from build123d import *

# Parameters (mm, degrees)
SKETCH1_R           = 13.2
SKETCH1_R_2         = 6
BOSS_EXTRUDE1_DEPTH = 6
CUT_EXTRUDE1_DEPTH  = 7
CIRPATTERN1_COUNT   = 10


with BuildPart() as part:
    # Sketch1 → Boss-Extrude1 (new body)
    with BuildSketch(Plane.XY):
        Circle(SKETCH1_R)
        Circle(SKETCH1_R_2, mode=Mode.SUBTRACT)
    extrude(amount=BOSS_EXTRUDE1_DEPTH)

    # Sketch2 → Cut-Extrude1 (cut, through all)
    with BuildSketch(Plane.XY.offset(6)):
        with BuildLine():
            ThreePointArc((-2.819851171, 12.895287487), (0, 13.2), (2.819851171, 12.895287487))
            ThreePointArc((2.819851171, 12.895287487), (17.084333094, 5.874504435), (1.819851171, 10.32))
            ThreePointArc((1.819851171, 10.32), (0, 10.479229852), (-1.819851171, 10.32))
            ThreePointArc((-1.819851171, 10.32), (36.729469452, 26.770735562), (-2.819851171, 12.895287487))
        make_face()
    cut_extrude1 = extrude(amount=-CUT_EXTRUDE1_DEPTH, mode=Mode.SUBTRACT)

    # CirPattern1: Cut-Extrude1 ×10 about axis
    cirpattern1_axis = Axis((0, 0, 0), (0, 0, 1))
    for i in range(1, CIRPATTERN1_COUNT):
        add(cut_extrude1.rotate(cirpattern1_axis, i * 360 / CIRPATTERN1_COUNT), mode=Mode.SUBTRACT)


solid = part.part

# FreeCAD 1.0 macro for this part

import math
import FreeCAD as App
import Part
import Sketcher

V = App.Vector

doc = App.newDocument("Part")
params = doc.addObject("Spreadsheet::Sheet", "Params")
for row, (alias, value) in enumerate([
    ("sketch1_diameter", "12 mm"),
    ("sketch1_diameter2", "26.4 mm"),
    ("pad1_length", "6 mm"),
    ("sketch2_radius", "13.2 mm"),
], start=1):
    params.set(f"A{row}", alias)
    params.set(f"B{row}", "=" + value)
    params.setAlias(f"B{row}", alias)

body = doc.addObject("PartDesign::Body", "Body")
body.AllowCompound = True

sketch1 = body.newObject("Sketcher::SketchObject", "Sketch")
sketch1.AttachmentSupport = (doc.getObject("XY_Plane"), [""])
sketch1.MapMode = "FlatFace"
sketch1.addGeometry([
    Part.Circle(V(0, 0, 0), V(0, 0, 1), 13),
    Part.Circle(V(0, 0, 0), V(0, 0, 1), 6),
], False)
sketch1.addConstraint([
    Sketcher.Constraint("Coincident", 0, 3, -1, 1),
    Sketcher.Constraint("Coincident", 1, 3, -1, 1),
    Sketcher.Constraint("Diameter", 1, 12.0),
    Sketcher.Constraint("Diameter", 0, 26.4),
])
sketch1.setExpression("Constraints[2]", "Params.sketch1_diameter")
sketch1.setExpression("Constraints[3]", "Params.sketch1_diameter2")
pad1 = body.newObject("PartDesign::Pad", "Pad")
pad1.Profile = sketch1
pad1.setExpression("Length", "Params.pad1_length")

sketch2 = body.newObject("Sketcher::SketchObject", "Sketch001")
sketch2.AttachmentSupport = (doc.getObject("XY_Plane"), [""])
sketch2.MapMode = "FlatFace"
sketch2.AttachmentOffset = App.Placement(V(0, 0, 6), App.Rotation())
sketch2.addGeometry([
    Part.ArcOfCircle(Part.Circle(V(0, 0, 0), V(0, 0, 1), 13.2), math.radians(78), math.radians(102)),
    Part.ArcOfCircle(Part.Circle(V(9.6, 8.8, 0), V(0, 0, 1), 8), math.radians(169), math.radians(509)),
    Part.ArcOfCircle(Part.Circle(V(0, 0, 0), V(0, 0, 1), 10.5), math.radians(80), math.radians(100)),
    Part.ArcOfCircle(Part.Circle(V(17.2, 19.2, 0), V(0, 0, 1), 21), math.radians(-155), math.radians(197)),
], False)
sketch2.addConstraint([
    Sketcher.Constraint("Coincident", 0, 1, 1, 2),
    Sketcher.Constraint("Coincident", 1, 1, 2, 1),
    Sketcher.Constraint("Coincident", 2, 2, 3, 1),
    Sketcher.Constraint("Coincident", 3, 2, 0, 2),
    Sketcher.Constraint("Coincident", 0, 3, -1, 1),
    Sketcher.Constraint("Coincident", 2, 3, -1, 1),
    Sketcher.Constraint("Horizontal", 1, 1, 2, 2),
    Sketcher.Constraint("Horizontal", 0, 1, 3, 2),
    Sketcher.Constraint("Radius", 0, 13.2),
    Sketcher.Constraint("DistanceX", 1, 1, 0, 1, 1.0),
    Sketcher.Constraint("DistanceY", -1, 1, 1, 1, 10.32),
    Sketcher.Constraint("Radius", 2, 10.47923),
    Sketcher.Constraint("Radius", 1, 7.979495),
    Sketcher.Constraint("Radius", 3, 20.967755),
])
sketch2.setExpression("Constraints[8]", "Params.sketch2_radius")
pocket1 = body.newObject("PartDesign::Pocket", "Pocket")
pocket1.Profile = sketch2
pocket1.Type = "ThroughAll"
doc.recompute()

polarpattern = body.newObject("PartDesign::PolarPattern", "PolarPattern")
polarpattern.Originals = [pocket1]
polarpattern.Axis = (doc.getObject("Z_Axis"), [""])
polarpattern.Angle = 360
polarpattern.Occurrences = 10
body.Tip = polarpattern

doc.recompute()
